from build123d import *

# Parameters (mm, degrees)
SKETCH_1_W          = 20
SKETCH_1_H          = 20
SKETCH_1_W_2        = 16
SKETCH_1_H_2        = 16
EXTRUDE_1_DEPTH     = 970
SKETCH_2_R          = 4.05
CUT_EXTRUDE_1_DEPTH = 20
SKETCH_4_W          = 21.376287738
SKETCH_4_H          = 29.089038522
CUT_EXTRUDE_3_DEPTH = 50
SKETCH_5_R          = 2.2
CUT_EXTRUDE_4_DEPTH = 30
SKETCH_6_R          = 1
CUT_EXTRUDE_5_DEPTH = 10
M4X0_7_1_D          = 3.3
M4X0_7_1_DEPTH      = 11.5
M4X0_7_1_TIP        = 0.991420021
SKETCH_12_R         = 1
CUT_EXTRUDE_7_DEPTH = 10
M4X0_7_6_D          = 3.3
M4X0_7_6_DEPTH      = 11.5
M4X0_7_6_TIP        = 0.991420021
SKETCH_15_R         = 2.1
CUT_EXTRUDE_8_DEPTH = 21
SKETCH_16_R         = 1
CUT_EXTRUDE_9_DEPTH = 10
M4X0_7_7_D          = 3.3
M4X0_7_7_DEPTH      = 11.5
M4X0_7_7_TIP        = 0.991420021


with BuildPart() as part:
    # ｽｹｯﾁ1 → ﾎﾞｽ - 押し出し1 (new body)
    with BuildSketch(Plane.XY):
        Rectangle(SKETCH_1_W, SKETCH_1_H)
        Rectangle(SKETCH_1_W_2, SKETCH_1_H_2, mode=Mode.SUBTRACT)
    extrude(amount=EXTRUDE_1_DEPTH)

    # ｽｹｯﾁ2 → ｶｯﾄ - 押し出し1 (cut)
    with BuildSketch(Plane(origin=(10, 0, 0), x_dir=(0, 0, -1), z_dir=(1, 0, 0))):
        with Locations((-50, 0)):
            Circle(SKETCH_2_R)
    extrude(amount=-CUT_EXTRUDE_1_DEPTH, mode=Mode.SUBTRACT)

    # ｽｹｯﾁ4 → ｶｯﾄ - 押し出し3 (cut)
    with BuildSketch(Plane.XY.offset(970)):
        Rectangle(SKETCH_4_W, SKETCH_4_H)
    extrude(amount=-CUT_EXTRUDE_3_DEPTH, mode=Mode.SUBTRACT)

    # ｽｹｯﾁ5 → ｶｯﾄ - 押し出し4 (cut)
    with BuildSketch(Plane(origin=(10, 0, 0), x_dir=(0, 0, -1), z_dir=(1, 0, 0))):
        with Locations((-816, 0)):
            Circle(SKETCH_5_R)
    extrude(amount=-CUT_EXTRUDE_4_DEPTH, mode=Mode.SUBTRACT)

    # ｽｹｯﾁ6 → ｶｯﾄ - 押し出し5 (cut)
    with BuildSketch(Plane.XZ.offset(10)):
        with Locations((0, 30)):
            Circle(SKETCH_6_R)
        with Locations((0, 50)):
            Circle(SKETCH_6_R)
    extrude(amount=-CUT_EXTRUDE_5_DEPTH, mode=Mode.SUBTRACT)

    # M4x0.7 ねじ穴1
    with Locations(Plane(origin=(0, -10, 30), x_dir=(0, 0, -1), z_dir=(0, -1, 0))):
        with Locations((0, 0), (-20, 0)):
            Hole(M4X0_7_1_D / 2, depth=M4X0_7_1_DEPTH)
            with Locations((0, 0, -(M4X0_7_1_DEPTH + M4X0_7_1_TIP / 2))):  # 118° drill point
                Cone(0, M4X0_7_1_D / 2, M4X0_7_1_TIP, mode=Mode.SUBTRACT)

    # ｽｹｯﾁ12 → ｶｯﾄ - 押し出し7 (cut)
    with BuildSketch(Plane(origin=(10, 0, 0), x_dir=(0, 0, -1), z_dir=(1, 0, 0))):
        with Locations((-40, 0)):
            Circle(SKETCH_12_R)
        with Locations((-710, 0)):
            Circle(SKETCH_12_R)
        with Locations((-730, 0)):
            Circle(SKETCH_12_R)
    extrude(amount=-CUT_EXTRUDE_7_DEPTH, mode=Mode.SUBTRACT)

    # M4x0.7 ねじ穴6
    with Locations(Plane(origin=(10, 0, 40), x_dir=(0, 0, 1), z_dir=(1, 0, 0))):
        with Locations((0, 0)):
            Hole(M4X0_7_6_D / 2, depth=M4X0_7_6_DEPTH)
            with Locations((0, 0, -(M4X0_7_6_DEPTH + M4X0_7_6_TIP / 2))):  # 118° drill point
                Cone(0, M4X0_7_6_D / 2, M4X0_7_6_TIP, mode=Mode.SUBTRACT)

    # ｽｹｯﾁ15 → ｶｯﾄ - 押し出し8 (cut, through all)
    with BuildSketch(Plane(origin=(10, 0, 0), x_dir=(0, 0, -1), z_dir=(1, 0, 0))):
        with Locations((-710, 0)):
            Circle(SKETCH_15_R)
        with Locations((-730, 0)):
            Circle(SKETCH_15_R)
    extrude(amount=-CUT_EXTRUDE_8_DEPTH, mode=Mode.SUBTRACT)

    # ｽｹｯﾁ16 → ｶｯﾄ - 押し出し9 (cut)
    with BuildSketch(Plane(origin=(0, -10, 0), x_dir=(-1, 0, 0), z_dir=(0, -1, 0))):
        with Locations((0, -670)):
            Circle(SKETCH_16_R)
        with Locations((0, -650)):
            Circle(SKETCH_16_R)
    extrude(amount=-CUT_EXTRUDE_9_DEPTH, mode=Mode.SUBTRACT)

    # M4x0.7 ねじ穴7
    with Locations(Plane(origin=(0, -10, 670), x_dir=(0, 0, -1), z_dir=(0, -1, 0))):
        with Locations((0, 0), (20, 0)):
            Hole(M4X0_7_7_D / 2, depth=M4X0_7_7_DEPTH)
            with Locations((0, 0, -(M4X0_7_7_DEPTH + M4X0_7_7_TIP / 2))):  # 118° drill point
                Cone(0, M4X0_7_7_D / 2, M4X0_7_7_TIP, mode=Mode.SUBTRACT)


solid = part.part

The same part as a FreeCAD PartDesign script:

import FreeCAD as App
import Part
import Sketcher
Q = App.Units.Quantity

doc = App.newDocument("Part")
body = doc.addObject("PartDesign::Body", "Body")

# Sketch on XY plane
sketch1 = body.newObject("Sketcher::SketchObject", "Sketch")
sketch1.AttachmentSupport = (doc.getObject("XY_Plane"), [""])
sketch1.MapMode = "FlatFace"
sketch1.addGeometry([
    Part.LineSegment(App.Vector(-10, 10, 0), App.Vector(-10, -10, 0)),  # 0
    Part.LineSegment(App.Vector(-10, -10, 0), App.Vector(10, -10, 0)),  # 1
    Part.LineSegment(App.Vector(10, -10, 0), App.Vector(10, 10, 0)),  # 2
    Part.LineSegment(App.Vector(10, 10, 0), App.Vector(-10, 10, 0)),  # 3
    Part.LineSegment(App.Vector(8, -8, 0), App.Vector(-8, -8, 0)),  # 4
    Part.LineSegment(App.Vector(-8, -8, 0), App.Vector(-8, 8, 0)),  # 5
    Part.LineSegment(App.Vector(-8, 8, 0), App.Vector(8, 8, 0)),  # 6
    Part.LineSegment(App.Vector(8, 8, 0), App.Vector(8, -8, 0)),  # 7
], False)
sketch1.addConstraint([
    Sketcher.Constraint("Coincident", 0, 2, 1, 1),
    Sketcher.Constraint("Coincident", 1, 2, 2, 1),
    Sketcher.Constraint("Coincident", 2, 2, 3, 1),
    Sketcher.Constraint("Coincident", 3, 2, 0, 1),
    Sketcher.Constraint("Coincident", 4, 2, 5, 1),
    Sketcher.Constraint("Coincident", 5, 2, 6, 1),
    Sketcher.Constraint("Coincident", 6, 2, 7, 1),
    Sketcher.Constraint("Coincident", 7, 2, 4, 1),
    Sketcher.Constraint("Vertical", 0),
    Sketcher.Constraint("Horizontal", 1),
    Sketcher.Constraint("Vertical", 2),
    Sketcher.Constraint("Horizontal", 3),
    Sketcher.Constraint("Horizontal", 4),
    Sketcher.Constraint("Vertical", 5),
    Sketcher.Constraint("Horizontal", 6),
    Sketcher.Constraint("Vertical", 7),
    Sketcher.Constraint("Symmetric", 0, 2, 2, 2, -1, 1),
    Sketcher.Constraint("Symmetric", 4, 2, 6, 2, -1, 1),
    Sketcher.Constraint("Equal", 3, 0),
    Sketcher.Constraint("Equal", 6, 5),
    Sketcher.Constraint("DistanceX", 1, 1, 1, 2, Q("20 mm")),
    Sketcher.Constraint("DistanceX", 4, 2, 4, 1, Q("16 mm")),
])
pad1 = body.newObject("PartDesign::Pad", "Pad")
pad1.Profile = sketch1
pad1.Length = 970

# Sketch on YZ plane
sketch2 = body.newObject("Sketcher::SketchObject", "Sketch001")
sketch2.AttachmentSupport = (doc.getObject("YZ_Plane"), [""])
sketch2.MapMode = "FlatFace"
sketch2.AttachmentOffset = App.Placement(App.Vector(0, 0, 10), App.Rotation())
sketch2.addGeometry(Part.Circle(App.Vector(0, 50, 0), App.Vector(0, 0, 1), 4.05), False)
sketch2.addConstraint([
    Sketcher.Constraint("PointOnObject", 0, 3, -2),
    Sketcher.Constraint("Diameter", 0, Q("8.1 mm")),
    Sketcher.Constraint("DistanceY", -1, 1, 0, 3, Q("50 mm")),
])
pocket1 = body.newObject("PartDesign::Pocket", "Pocket")
pocket1.Profile = sketch2
pocket1.Length = 20

# Sketch on XY plane
sketch3 = body.newObject("Sketcher::SketchObject", "Sketch002")
sketch3.AttachmentSupport = (doc.getObject("XY_Plane"), [""])
sketch3.MapMode = "FlatFace"
sketch3.AttachmentOffset = App.Placement(App.Vector(0, 0, 970), App.Rotation())
sketch3.addGeometry([
    Part.LineSegment(App.Vector(-10.688144, 14.544519, 0), App.Vector(-10.688144, -14.544519, 0)),
    Part.LineSegment(App.Vector(-10.688144, -14.544519, 0), App.Vector(10.688144, -14.544519, 0)),
    Part.LineSegment(App.Vector(10.688144, -14.544519, 0), App.Vector(10.688144, 14.544519, 0)),
    Part.LineSegment(App.Vector(10.688144, 14.544519, 0), App.Vector(-10.688144, 14.544519, 0)),
], False)
sketch3.addConstraint([
    Sketcher.Constraint("Coincident", 0, 2, 1, 1),
    Sketcher.Constraint("Coincident", 1, 2, 2, 1),
    Sketcher.Constraint("Coincident", 2, 2, 3, 1),
    Sketcher.Constraint("Coincident", 3, 2, 0, 1),
    Sketcher.Constraint("Vertical", 0),
    Sketcher.Constraint("Horizontal", 1),
    Sketcher.Constraint("Vertical", 2),
    Sketcher.Constraint("Horizontal", 3),
    Sketcher.Constraint("Symmetric", 0, 2, 2, 2, -1, 1),
    Sketcher.Constraint("DistanceY", 0, 2, 0, 1, Q("29.089039 mm")),
    Sketcher.Constraint("DistanceX", 1, 1, 1, 2, Q("21.376288 mm")),
])
pocket2 = body.newObject("PartDesign::Pocket", "Pocket001")
pocket2.Profile = sketch3
pocket2.Length = 50

# Sketch on YZ plane
sketch4 = body.newObject("Sketcher::SketchObject", "Sketch003")
sketch4.AttachmentSupport = (doc.getObject("YZ_Plane"), [""])
sketch4.MapMode = "FlatFace"
sketch4.AttachmentOffset = App.Placement(App.Vector(0, 0, 10), App.Rotation())
sketch4.addGeometry(Part.Circle(App.Vector(0, 816, 0), App.Vector(0, 0, 1), 2.2), False)
sketch4.addConstraint([
    Sketcher.Constraint("PointOnObject", 0, 3, -2),
    Sketcher.Constraint("Diameter", 0, Q("4.4 mm")),
    Sketcher.Constraint("DistanceY", -1, 1, 0, 3, Q("816 mm")),
])
pocket3 = body.newObject("PartDesign::Pocket", "Pocket002")
pocket3.Profile = sketch4
pocket3.Length = 30

# Sketch on XZ plane
sketch5 = body.newObject("Sketcher::SketchObject", "Sketch004")
sketch5.AttachmentSupport = (doc.getObject("XZ_Plane"), [""])
sketch5.MapMode = "FlatFace"
sketch5.AttachmentOffset = App.Placement(App.Vector(0, 0, 10), App.Rotation())
sketch5.addGeometry([
    Part.Circle(App.Vector(0, 30, 0), App.Vector(0, 0, 1), 1),
    Part.Circle(App.Vector(0, 50, 0), App.Vector(0, 0, 1), 1),
], False)
sketch5.addConstraint([
    Sketcher.Constraint("Equal", 0, 1),
    Sketcher.Constraint("PointOnObject", 0, 3, -2),
    Sketcher.Constraint("PointOnObject", 1, 3, -2),
    Sketcher.Constraint("Diameter", 0, Q("2 mm")),
    Sketcher.Constraint("DistanceY", -1, 1, 0, 3, Q("30 mm")),
    Sketcher.Constraint("DistanceY", -1, 1, 1, 3, Q("50 mm")),
])
pocket4 = body.newObject("PartDesign::Pocket", "Pocket003")
pocket4.Profile = sketch5
pocket4.Length = 10

# Sketch on XZ plane
sketch6 = body.newObject("Sketcher::SketchObject", "Sketch005")
sketch6.AttachmentSupport = (doc.getObject("XZ_Plane"), [""])
sketch6.MapMode = "FlatFace"
sketch6.AttachmentOffset = App.Placement(App.Vector(0, 0, 10), App.Rotation())
sketch6.addGeometry([
    Part.Circle(App.Vector(0, 30, 0), App.Vector(0, 0, 1), 1.65),
    Part.Circle(App.Vector(0, 50, 0), App.Vector(0, 0, 1), 1.65),
], False)
sketch6.addConstraint([
    Sketcher.Constraint("Equal", 0, 1),
    Sketcher.Constraint("PointOnObject", 0, 3, -2),
    Sketcher.Constraint("PointOnObject", 1, 3, -2),
    Sketcher.Constraint("Diameter", 0, Q("3.3 mm")),
    Sketcher.Constraint("DistanceY", -1, 1, 0, 3, Q("30 mm")),
    Sketcher.Constraint("DistanceY", -1, 1, 1, 3, Q("50 mm")),
])
doc.recompute()
hole = body.newObject("PartDesign::Hole", "Hole")
hole.Profile = sketch6
hole.ThreadType = "None"
hole.Diameter = 3.3
hole.DepthType = "Dimension"
hole.Depth = 11.5
hole.DrillPoint = "Angled"
hole.DrillPointAngle = 118

# Sketch on YZ plane
sketch7 = body.newObject("Sketcher::SketchObject", "Sketch006")
sketch7.AttachmentSupport = (doc.getObject("YZ_Plane"), [""])
sketch7.MapMode = "FlatFace"
sketch7.AttachmentOffset = App.Placement(App.Vector(0, 0, 10), App.Rotation())
sketch7.addGeometry([
    Part.Circle(App.Vector(0, 40, 0), App.Vector(0, 0, 1), 1),
    Part.Circle(App.Vector(0, 710, 0), App.Vector(0, 0, 1), 1),
    Part.Circle(App.Vector(0, 730, 0), App.Vector(0, 0, 1), 1),
], False)
sketch7.addConstraint([
    Sketcher.Constraint("Equal", 0, 1),
    Sketcher.Constraint("Equal", 1, 2),
    Sketcher.Constraint("PointOnObject", 0, 3, -2),
    Sketcher.Constraint("PointOnObject", 1, 3, -2),
    Sketcher.Constraint("PointOnObject", 2, 3, -2),
    Sketcher.Constraint("Diameter", 0, Q("2 mm")),
    Sketcher.Constraint("DistanceY", -1, 1, 0, 3, Q("40 mm")),
    Sketcher.Constraint("DistanceY", -1, 1, 1, 3, Q("710 mm")),
    Sketcher.Constraint("DistanceY", -1, 1, 2, 3, Q("730 mm")),
])
pocket5 = body.newObject("PartDesign::Pocket", "Pocket004")
pocket5.Profile = sketch7
pocket5.Length = 10

# Sketch on YZ plane
sketch8 = body.newObject("Sketcher::SketchObject", "Sketch007")
sketch8.AttachmentSupport = (doc.getObject("YZ_Plane"), [""])
sketch8.MapMode = "FlatFace"
sketch8.AttachmentOffset = App.Placement(App.Vector(0, 0, 10), App.Rotation())
sketch8.addGeometry(Part.Circle(App.Vector(0, 40, 0), App.Vector(0, 0, 1), 1.65), False)
sketch8.addConstraint([
    Sketcher.Constraint("PointOnObject", 0, 3, -2),
    Sketcher.Constraint("Diameter", 0, Q("3.3 mm")),
    Sketcher.Constraint("DistanceY", -1, 1, 0, 3, Q("40 mm")),
])
doc.recompute()
hole2 = body.newObject("PartDesign::Hole", "Hole001")
hole2.Profile = sketch8
hole2.ThreadType = "None"
hole2.Diameter = 3.3
hole2.DepthType = "Dimension"
hole2.Depth = 11.5
hole2.DrillPoint = "Angled"
hole2.DrillPointAngle = 118

# Sketch on YZ plane
sketch9 = body.newObject("Sketcher::SketchObject", "Sketch008")
sketch9.AttachmentSupport = (doc.getObject("YZ_Plane"), [""])
sketch9.MapMode = "FlatFace"
sketch9.AttachmentOffset = App.Placement(App.Vector(0, 0, 10), App.Rotation())
sketch9.addGeometry([
    Part.Circle(App.Vector(0, 710, 0), App.Vector(0, 0, 1), 2.1),
    Part.Circle(App.Vector(0, 730, 0), App.Vector(0, 0, 1), 2.1),
], False)
sketch9.addConstraint([
    Sketcher.Constraint("Equal", 0, 1),
    Sketcher.Constraint("PointOnObject", 0, 3, -2),
    Sketcher.Constraint("PointOnObject", 1, 3, -2),
    Sketcher.Constraint("Diameter", 0, Q("4.2 mm")),
    Sketcher.Constraint("DistanceY", -1, 1, 0, 3, Q("710 mm")),
    Sketcher.Constraint("DistanceY", -1, 1, 1, 3, Q("730 mm")),
])
pocket6 = body.newObject("PartDesign::Pocket", "Pocket005")
pocket6.Profile = sketch9
pocket6.Type = "ThroughAll"

# Sketch on XZ plane
sketch10 = body.newObject("Sketcher::SketchObject", "Sketch009")
sketch10.AttachmentSupport = (doc.getObject("XZ_Plane"), [""])
sketch10.MapMode = "FlatFace"
sketch10.AttachmentOffset = App.Placement(App.Vector(0, 0, 10), App.Rotation())
sketch10.addGeometry([
    Part.Circle(App.Vector(0, 670, 0), App.Vector(0, 0, 1), 1),
    Part.Circle(App.Vector(0, 650, 0), App.Vector(0, 0, 1), 1),
], False)
sketch10.addConstraint([
    Sketcher.Constraint("Equal", 0, 1),
    Sketcher.Constraint("PointOnObject", 0, 3, -2),
    Sketcher.Constraint("PointOnObject", 1, 3, -2),
    Sketcher.Constraint("Diameter", 0, Q("2 mm")),
    Sketcher.Constraint("DistanceY", -1, 1, 0, 3, Q("670 mm")),
    Sketcher.Constraint("DistanceY", -1, 1, 1, 3, Q("650 mm")),
])
pocket7 = body.newObject("PartDesign::Pocket", "Pocket006")
pocket7.Profile = sketch10
pocket7.Length = 10

# Sketch on XZ plane
sketch11 = body.newObject("Sketcher::SketchObject", "Sketch010")
sketch11.AttachmentSupport = (doc.getObject("XZ_Plane"), [""])
sketch11.MapMode = "FlatFace"
sketch11.AttachmentOffset = App.Placement(App.Vector(0, 0, 10), App.Rotation())
sketch11.addGeometry([
    Part.Circle(App.Vector(0, 670, 0), App.Vector(0, 0, 1), 1.65),
    Part.Circle(App.Vector(0, 650, 0), App.Vector(0, 0, 1), 1.65),
], False)
sketch11.addConstraint([
    Sketcher.Constraint("Equal", 0, 1),
    Sketcher.Constraint("PointOnObject", 0, 3, -2),
    Sketcher.Constraint("PointOnObject", 1, 3, -2),
    Sketcher.Constraint("Diameter", 0, Q("3.3 mm")),
    Sketcher.Constraint("DistanceY", -1, 1, 0, 3, Q("670 mm")),
    Sketcher.Constraint("DistanceY", -1, 1, 1, 3, Q("650 mm")),
])
doc.recompute()
hole3 = body.newObject("PartDesign::Hole", "Hole002")
hole3.Profile = sketch11
hole3.ThreadType = "None"
hole3.Diameter = 3.3
hole3.DepthType = "Dimension"
hole3.Depth = 11.5
hole3.DrillPoint = "Angled"
hole3.DrillPointAngle = 118

doc.recompute()
